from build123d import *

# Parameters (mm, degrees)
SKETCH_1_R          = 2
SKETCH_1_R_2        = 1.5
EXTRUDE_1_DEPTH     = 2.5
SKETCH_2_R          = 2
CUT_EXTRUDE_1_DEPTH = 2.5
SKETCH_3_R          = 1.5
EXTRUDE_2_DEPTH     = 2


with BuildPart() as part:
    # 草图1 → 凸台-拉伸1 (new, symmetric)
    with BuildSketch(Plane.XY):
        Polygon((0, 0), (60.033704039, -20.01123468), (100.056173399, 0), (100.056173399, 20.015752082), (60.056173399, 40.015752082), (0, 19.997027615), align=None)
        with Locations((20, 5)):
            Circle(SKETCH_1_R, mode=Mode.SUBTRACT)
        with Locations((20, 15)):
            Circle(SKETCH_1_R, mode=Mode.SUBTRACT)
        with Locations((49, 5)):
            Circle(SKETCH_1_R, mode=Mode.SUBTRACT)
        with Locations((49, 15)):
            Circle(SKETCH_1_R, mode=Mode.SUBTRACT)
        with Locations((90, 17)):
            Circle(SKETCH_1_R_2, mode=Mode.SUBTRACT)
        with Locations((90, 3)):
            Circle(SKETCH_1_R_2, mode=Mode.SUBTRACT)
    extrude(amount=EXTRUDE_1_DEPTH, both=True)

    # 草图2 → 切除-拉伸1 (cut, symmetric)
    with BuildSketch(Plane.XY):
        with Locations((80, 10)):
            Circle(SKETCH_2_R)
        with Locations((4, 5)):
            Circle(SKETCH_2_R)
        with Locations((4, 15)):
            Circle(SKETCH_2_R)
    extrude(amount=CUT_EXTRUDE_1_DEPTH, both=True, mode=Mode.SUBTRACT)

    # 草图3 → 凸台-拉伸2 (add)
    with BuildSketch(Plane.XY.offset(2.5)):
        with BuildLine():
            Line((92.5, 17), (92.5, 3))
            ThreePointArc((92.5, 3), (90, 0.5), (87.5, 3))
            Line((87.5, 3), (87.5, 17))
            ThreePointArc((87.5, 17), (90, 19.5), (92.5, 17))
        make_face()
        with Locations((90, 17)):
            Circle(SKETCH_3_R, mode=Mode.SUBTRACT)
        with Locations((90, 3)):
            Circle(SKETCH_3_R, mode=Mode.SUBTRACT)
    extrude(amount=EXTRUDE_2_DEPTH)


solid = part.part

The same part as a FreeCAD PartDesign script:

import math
import FreeCAD as App
import Part
import Sketcher

doc = App.newDocument("Part")
body = doc.addObject("PartDesign::Body", "Body")

# Sketch on XY plane
sketch1 = doc.addObject("Sketcher::SketchObject", "Sketch")
body.addObject(sketch1)
sketch1.AttachmentSupport = (doc.XY_Plane, [""])
sketch1.MapMode = "FlatFace"
sketch1.addGeometry([
    Part.LineSegment(App.Vector(0, 0, 0), App.Vector(60.033704, -20.011235, 0)),  # 0
    Part.LineSegment(App.Vector(60.033704, -20.011235, 0), App.Vector(100.056173, 0, 0)),  # 1
    Part.LineSegment(App.Vector(100.056173, 0, 0), App.Vector(100.056173, 20.015752, 0)),  # 2
    Part.LineSegment(App.Vector(100.056173, 20.015752, 0), App.Vector(60.056173, 40.015752, 0)),  # 3
    Part.LineSegment(App.Vector(60.056173, 40.015752, 0), App.Vector(0, 19.997028, 0)),  # 4
    Part.LineSegment(App.Vector(0, 19.997028, 0), App.Vector(0, 0, 0)),  # 5
    Part.Circle(App.Vector(20, 5, 0), App.Vector(0, 0, 1), 2),  # 6
    Part.Circle(App.Vector(49, 5, 0), App.Vector(0, 0, 1), 2),  # 7
    Part.Circle(App.Vector(90, 3, 0), App.Vector(0, 0, 1), 1.5),  # 8
    Part.Circle(App.Vector(20, 15, 0), App.Vector(0, 0, 1), 2),  # 9
    Part.Circle(App.Vector(49, 15, 0), App.Vector(0, 0, 1), 2),  # 10
    Part.Circle(App.Vector(90, 17, 0), App.Vector(0, 0, 1), 1.5),  # 11
], False)
sketch1.addConstraint([
    Sketcher.Constraint("Coincident", 0, 2, 1, 1),
    Sketcher.Constraint("Coincident", 1, 2, 2, 1),
    Sketcher.Constraint("Coincident", 2, 2, 3, 1),
    Sketcher.Constraint("Coincident", 3, 2, 4, 1),
    Sketcher.Constraint("Coincident", 4, 2, 5, 1),
    Sketcher.Constraint("Coincident", 5, 2, 0, 1),
    Sketcher.Constraint("Vertical", 2),
    Sketcher.Constraint("Vertical", 5),
    Sketcher.Constraint("Coincident", 5, 2, -1, 1),
    Sketcher.Constraint("Equal", 6, 7),
    Sketcher.Constraint("Equal", 7, 9),
    Sketcher.Constraint("Equal", 9, 10),
    Sketcher.Constraint("Equal", 8, 11),
    Sketcher.Constraint("PointOnObject", 1, 2, -1),
    Sketcher.Constraint("Horizontal", 6, 3, 7, 3),
    Sketcher.Constraint("Horizontal", 9, 3, 10, 3),
    Sketcher.Constraint("Vertical", 6, 3, 9, 3),
    Sketcher.Constraint("Vertical", 7, 3, 10, 3),
    Sketcher.Constraint("Vertical", 8, 3, 11, 3),
    Sketcher.Constraint("Diameter", 6, 4.0),
    Sketcher.Constraint("Diameter", 8, 3.0),
    Sketcher.Constraint("DistanceX", -1, 1, 6, 3, 20.0),
    Sketcher.Constraint("DistanceY", -1, 1, 6, 3, 5.0),
    Sketcher.Constraint("DistanceX", -1, 1, 7, 3, 49.0),
    Sketcher.Constraint("DistanceX", -1, 1, 8, 3, 90.0),
    Sketcher.Constraint("DistanceY", -1, 1, 8, 3, 3.0),
    Sketcher.Constraint("DistanceY", -1, 1, 9, 3, 15.0),
    Sketcher.Constraint("DistanceY", -1, 1, 11, 3, 17.0),
    Sketcher.Constraint("DistanceX", 3, 2, 2, 2, 40.0),
    Sketcher.Constraint("DistanceY", 2, 2, 3, 2, 20.0),
    Sketcher.Constraint("Distance", 0, 63.28108),
    Sketcher.Constraint("Distance", 1, 44.746481),
    Sketcher.Constraint("DistanceY", 2, 1, 2, 2, 20.015752),
    Sketcher.Constraint("DistanceY", 5, 2, 5, 1, 19.997028),
    Sketcher.Constraint("DistanceX", 0, 2, 1, 2, 40.022469),
])
pad1 = doc.addObject("PartDesign::Pad", "Pad")
body.addObject(pad1)
pad1.Profile = sketch1
pad1.Length = 5
pad1.Midplane = True

# Sketch on XY plane
sketch2 = doc.addObject("Sketcher::SketchObject", "Sketch001")
body.addObject(sketch2)
sketch2.AttachmentSupport = (doc.XY_Plane, [""])
sketch2.MapMode = "FlatFace"
sketch2.addGeometry([
    Part.Circle(App.Vector(80, 10, 0), App.Vector(0, 0, 1), 2),
    Part.Circle(App.Vector(4, 5, 0), App.Vector(0, 0, 1), 2),
    Part.Circle(App.Vector(4, 15, 0), App.Vector(0, 0, 1), 2),
], False)
sketch2.addConstraint([
    Sketcher.Constraint("Equal", 0, 1),
    Sketcher.Constraint("Equal", 1, 2),
    Sketcher.Constraint("Vertical", 1, 3, 2, 3),
    Sketcher.Constraint("Diameter", 0, 4.0),
    Sketcher.Constraint("DistanceX", -1, 1, 0, 3, 80.0),
    Sketcher.Constraint("DistanceY", -1, 1, 0, 3, 10.0),
    Sketcher.Constraint("DistanceX", -1, 1, 1, 3, 4.0),
    Sketcher.Constraint("DistanceY", -1, 1, 1, 3, 5.0),
    Sketcher.Constraint("DistanceY", -1, 1, 2, 3, 15.0),
])
pocket1 = doc.addObject("PartDesign::Pocket", "Pocket")
body.addObject(pocket1)
pocket1.Profile = sketch2
pocket1.Length = 5
pocket1.Midplane = True

# Sketch on XY plane
sketch3 = doc.addObject("Sketcher::SketchObject", "Sketch002")
body.addObject(sketch3)
sketch3.AttachmentSupport = (doc.XY_Plane, [""])
sketch3.MapMode = "FlatFace"
sketch3.AttachmentOffset = App.Placement(App.Vector(0, 0, 2.5), App.Rotation())
sketch3.addGeometry([
    Part.LineSegment(App.Vector(92.5, 3, 0), App.Vector(92.5, 17, 0)),  # 0
    Part.ArcOfCircle(Part.Circle(App.Vector(90, 17, 0), App.Vector(0, 0, 1), 2.5), math.radians(0), math.radians(180)),  # 1
    Part.LineSegment(App.Vector(87.5, 17, 0), App.Vector(87.5, 3, 0)),  # 2
    Part.ArcOfCircle(Part.Circle(App.Vector(90, 3, 0), App.Vector(0, 0, 1), 2.5), math.radians(180), math.radians(360)),  # 3
    Part.Circle(App.Vector(90, 3, 0), App.Vector(0, 0, 1), 1.5),  # 4
    Part.Circle(App.Vector(90, 17, 0), App.Vector(0, 0, 1), 1.5),  # 5
], False)
sketch3.addConstraint([
    Sketcher.Constraint("Tangent", 0, 2, 1, 1),
    Sketcher.Constraint("Tangent", 1, 2, 2, 1),
    Sketcher.Constraint("Tangent", 2, 2, 3, 1),
    Sketcher.Constraint("Tangent", 3, 2, 0, 1),
    Sketcher.Constraint("Vertical", 0),
    Sketcher.Constraint("Vertical", 2),
    Sketcher.Constraint("Coincident", 4, 3, 3, 3),
    Sketcher.Constraint("Coincident", 5, 3, 1, 3),
    Sketcher.Constraint("Equal", 4, 5),
    Sketcher.Constraint("Diameter", 4, 3.0),
    Sketcher.Constraint("Radius", 1, 2.5),
    Sketcher.Constraint("DistanceY", 0, 1, 0, 2, 14.0),
    Sketcher.Constraint("DistanceX", -1, 1, 1, 3, 90.0),
    Sketcher.Constraint("DistanceY", -1, 1, 1, 3, 17.0),
])
pad2 = doc.addObject("PartDesign::Pad", "Pad001")
body.addObject(pad2)
pad2.Profile = sketch3
pad2.Length = 2

doc.recompute()
